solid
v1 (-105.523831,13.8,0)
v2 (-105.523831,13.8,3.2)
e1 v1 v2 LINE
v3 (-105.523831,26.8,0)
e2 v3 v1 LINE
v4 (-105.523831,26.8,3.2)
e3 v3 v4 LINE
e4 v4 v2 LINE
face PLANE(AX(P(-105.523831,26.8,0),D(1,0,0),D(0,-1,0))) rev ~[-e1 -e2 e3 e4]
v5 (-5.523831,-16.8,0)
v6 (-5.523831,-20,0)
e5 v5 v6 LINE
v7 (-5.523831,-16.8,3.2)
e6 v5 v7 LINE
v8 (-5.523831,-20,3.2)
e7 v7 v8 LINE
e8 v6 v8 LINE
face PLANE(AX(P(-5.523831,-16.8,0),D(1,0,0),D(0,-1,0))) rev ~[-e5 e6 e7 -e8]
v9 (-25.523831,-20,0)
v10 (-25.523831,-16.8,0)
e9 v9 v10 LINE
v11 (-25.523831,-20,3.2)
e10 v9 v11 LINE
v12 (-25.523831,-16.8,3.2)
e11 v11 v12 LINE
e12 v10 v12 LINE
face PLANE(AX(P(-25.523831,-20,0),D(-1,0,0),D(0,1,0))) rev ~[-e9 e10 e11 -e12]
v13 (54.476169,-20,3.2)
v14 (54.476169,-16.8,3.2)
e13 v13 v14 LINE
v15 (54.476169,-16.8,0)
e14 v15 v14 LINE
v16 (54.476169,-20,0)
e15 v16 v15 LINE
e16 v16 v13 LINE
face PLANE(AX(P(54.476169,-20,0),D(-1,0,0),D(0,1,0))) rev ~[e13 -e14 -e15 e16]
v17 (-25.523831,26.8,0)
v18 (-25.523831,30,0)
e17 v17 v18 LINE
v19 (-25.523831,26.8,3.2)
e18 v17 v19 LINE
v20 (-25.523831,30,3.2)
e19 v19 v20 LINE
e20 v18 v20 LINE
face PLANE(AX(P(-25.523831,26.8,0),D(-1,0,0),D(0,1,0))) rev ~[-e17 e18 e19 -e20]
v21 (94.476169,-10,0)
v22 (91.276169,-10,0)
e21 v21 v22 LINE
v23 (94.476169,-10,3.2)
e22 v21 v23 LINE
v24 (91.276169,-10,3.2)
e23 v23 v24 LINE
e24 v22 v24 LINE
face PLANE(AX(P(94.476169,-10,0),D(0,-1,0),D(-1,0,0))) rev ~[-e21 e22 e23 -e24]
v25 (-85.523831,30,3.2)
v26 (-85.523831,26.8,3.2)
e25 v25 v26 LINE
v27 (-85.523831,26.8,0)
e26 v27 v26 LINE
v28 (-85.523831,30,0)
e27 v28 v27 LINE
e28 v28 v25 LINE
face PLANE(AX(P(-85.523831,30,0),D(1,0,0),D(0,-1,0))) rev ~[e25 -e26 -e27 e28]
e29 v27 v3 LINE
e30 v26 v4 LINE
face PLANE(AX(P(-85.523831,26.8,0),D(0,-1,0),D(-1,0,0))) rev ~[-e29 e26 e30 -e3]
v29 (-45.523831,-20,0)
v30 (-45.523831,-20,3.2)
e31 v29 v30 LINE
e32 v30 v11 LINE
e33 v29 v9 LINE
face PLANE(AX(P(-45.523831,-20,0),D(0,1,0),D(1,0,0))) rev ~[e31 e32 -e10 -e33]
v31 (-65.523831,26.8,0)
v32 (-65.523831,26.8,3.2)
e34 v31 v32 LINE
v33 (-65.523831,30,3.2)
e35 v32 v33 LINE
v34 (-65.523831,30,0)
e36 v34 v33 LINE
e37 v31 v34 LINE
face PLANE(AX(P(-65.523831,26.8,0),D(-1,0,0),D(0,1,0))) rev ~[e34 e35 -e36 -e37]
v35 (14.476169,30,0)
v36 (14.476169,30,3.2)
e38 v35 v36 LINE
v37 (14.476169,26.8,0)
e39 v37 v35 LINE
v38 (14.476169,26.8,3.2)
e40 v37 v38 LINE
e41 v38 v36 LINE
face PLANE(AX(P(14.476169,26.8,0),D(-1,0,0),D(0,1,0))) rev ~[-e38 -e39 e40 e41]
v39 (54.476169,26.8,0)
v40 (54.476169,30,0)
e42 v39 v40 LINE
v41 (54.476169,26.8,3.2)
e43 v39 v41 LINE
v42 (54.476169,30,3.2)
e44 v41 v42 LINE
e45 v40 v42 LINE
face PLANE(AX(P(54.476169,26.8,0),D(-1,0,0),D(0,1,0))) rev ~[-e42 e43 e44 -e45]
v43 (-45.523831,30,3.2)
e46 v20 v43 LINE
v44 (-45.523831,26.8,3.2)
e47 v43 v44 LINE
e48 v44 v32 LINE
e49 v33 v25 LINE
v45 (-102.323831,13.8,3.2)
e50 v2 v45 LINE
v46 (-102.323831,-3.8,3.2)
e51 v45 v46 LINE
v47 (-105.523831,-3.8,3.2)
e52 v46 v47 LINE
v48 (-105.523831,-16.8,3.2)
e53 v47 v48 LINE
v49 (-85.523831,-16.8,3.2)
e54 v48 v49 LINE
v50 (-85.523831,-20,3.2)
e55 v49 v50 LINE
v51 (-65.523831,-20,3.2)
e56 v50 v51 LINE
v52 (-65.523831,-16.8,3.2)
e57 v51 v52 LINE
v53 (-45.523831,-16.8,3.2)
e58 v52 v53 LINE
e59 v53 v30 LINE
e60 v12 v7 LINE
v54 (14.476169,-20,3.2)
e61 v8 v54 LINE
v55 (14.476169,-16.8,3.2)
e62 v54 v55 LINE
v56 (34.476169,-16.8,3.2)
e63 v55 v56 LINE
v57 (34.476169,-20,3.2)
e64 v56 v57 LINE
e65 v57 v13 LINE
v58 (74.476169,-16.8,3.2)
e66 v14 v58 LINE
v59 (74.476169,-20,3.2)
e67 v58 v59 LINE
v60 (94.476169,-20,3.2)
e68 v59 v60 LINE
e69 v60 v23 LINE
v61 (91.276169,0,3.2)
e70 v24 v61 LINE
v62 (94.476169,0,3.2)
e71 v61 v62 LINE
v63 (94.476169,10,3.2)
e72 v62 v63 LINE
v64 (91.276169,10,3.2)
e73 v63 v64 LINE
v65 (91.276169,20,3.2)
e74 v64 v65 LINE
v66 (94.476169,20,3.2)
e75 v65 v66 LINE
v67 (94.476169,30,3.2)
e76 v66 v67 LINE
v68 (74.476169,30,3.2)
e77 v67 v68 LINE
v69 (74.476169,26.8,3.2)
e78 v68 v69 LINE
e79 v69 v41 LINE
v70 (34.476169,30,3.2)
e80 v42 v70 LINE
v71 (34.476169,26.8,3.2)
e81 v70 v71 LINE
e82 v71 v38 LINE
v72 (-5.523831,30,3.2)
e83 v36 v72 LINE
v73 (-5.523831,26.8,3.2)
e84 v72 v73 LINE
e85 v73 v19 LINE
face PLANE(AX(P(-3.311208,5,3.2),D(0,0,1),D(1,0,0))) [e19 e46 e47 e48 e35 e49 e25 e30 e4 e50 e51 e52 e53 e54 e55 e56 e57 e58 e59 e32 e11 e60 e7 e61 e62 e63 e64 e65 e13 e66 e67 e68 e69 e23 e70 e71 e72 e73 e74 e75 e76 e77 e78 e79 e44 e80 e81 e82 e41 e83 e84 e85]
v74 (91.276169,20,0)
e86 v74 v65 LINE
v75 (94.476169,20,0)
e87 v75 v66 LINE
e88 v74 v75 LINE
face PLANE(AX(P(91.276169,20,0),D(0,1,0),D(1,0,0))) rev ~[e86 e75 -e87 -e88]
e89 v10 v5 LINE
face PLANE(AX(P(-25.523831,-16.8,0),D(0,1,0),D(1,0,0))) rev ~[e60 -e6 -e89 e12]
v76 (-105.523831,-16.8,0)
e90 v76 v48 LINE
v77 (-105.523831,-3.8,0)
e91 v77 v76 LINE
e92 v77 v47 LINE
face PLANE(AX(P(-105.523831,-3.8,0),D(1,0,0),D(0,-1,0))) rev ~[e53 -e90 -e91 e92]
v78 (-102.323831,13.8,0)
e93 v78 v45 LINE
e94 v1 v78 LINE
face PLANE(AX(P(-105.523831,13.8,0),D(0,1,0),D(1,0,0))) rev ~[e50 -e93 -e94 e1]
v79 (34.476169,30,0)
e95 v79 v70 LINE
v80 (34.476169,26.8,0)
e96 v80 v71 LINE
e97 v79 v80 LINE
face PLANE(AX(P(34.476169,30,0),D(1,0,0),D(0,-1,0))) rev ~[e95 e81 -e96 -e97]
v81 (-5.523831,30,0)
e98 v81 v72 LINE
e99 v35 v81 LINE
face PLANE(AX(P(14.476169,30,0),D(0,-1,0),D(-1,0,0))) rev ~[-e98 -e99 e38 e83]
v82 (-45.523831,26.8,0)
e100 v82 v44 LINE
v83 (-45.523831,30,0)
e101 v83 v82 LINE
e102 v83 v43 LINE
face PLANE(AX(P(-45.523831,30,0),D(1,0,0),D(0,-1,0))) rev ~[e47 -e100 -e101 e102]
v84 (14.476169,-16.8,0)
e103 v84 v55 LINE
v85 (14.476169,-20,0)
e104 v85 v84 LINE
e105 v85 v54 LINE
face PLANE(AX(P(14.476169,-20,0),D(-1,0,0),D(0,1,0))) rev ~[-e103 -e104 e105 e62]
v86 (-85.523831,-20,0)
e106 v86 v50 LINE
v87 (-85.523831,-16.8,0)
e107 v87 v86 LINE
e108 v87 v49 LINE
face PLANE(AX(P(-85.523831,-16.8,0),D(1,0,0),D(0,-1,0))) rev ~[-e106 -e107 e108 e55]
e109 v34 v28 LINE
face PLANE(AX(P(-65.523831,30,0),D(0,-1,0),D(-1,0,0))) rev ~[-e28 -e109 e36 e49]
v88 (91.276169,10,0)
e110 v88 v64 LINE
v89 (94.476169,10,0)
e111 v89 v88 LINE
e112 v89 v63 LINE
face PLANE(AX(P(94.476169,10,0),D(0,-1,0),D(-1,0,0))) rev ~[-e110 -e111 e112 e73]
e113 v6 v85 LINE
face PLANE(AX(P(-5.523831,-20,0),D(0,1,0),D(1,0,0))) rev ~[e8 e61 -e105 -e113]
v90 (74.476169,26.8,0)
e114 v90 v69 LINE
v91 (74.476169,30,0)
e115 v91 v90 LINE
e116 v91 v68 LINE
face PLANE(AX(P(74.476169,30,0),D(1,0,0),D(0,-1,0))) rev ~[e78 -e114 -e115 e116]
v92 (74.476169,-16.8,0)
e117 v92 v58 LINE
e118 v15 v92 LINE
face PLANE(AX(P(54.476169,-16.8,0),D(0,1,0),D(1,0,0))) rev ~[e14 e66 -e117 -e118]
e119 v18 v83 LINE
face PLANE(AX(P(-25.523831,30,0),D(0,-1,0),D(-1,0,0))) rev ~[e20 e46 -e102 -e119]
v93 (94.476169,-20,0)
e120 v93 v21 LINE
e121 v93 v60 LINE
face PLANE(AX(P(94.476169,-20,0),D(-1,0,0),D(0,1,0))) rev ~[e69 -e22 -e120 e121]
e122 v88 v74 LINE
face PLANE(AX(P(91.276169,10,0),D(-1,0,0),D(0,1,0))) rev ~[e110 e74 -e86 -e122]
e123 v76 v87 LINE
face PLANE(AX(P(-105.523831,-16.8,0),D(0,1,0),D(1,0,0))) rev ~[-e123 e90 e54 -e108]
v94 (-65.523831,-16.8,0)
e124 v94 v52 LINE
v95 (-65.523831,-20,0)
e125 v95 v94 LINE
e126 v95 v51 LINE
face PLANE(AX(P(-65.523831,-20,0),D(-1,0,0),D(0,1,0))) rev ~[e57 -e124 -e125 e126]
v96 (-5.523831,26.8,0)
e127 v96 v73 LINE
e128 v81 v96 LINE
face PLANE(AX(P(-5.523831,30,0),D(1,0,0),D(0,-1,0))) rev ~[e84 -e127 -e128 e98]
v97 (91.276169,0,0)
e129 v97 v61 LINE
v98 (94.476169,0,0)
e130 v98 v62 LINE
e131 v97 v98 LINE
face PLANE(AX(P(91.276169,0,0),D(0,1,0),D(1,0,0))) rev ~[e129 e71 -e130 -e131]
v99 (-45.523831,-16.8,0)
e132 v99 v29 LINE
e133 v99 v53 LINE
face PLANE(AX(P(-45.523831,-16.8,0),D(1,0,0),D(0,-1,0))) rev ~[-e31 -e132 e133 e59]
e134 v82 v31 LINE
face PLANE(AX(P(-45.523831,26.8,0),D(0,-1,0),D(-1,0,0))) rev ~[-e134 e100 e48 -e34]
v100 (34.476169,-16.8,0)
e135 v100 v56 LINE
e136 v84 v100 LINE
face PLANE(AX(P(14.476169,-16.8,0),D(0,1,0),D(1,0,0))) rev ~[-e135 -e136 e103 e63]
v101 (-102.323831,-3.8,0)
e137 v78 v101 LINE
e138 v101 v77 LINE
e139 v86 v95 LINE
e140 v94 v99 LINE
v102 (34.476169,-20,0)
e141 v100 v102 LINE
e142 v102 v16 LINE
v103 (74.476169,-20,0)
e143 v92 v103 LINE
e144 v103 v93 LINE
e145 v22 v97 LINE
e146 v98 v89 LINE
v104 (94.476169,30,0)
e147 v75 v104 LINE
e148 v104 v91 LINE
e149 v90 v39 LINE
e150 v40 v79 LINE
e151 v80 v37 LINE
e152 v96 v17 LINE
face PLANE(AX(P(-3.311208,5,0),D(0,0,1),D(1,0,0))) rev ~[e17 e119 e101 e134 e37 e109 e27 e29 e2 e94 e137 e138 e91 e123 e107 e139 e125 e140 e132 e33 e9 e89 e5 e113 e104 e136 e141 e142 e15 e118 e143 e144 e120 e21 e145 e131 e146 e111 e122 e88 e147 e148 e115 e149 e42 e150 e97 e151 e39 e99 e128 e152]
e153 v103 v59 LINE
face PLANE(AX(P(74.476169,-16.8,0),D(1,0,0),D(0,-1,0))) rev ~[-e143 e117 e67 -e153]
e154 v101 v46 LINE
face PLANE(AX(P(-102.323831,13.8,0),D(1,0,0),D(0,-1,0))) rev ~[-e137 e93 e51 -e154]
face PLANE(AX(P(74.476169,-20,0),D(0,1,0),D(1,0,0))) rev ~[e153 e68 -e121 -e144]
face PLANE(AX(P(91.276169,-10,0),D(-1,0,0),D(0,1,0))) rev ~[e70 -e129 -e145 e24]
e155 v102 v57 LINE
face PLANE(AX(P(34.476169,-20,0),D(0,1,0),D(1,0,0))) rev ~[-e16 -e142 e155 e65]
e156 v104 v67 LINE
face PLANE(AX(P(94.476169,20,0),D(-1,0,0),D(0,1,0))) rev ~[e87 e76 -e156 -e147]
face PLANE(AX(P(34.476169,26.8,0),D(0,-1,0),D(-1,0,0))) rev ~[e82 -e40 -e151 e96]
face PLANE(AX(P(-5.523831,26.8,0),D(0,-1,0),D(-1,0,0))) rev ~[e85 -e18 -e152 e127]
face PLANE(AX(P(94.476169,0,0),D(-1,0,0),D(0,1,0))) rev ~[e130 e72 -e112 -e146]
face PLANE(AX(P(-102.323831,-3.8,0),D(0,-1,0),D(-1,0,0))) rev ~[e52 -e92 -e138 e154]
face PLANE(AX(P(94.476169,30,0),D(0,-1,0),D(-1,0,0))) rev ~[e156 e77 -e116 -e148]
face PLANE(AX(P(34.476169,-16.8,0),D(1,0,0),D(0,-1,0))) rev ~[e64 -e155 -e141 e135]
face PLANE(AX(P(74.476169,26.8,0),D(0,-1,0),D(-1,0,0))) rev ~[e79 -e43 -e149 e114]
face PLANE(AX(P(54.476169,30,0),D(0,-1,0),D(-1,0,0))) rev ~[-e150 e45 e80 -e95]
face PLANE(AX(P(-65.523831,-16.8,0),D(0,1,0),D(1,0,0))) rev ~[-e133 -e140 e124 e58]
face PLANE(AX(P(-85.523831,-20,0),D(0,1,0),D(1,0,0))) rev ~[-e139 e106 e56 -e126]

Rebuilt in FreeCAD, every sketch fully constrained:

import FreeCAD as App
import Part
import Sketcher

V = App.Vector
Q = App.Units.Quantity

doc = App.newDocument("Part")
body = doc.addObject("PartDesign::Body", "Body")

# Sketch on XY plane
sketch1 = body.newObject("Sketcher::SketchObject", "Sketch")
sketch1.AttachmentSupport = (doc.getObject("XY_Plane"), [""])
sketch1.MapMode = "FlatFace"
sketch1.addGeometry([
    Part.LineSegment(V(-65.523831, 30, 0), V(-85.523831, 30, 0)),  # 0
    Part.LineSegment(V(-85.523831, 30, 0), V(-85.523831, 26.8, 0)),  # 1
    Part.LineSegment(V(-85.523831, 26.8, 0), V(-105.523831, 26.8, 0)),  # 2
    Part.LineSegment(V(-105.523831, 26.8, 0), V(-105.523831, 13.8, 0)),  # 3
    Part.LineSegment(V(-105.523831, 13.8, 0), V(-102.323831, 13.8, 0)),  # 4
    Part.LineSegment(V(-102.323831, 13.8, 0), V(-102.323831, -3.8, 0)),  # 5
    Part.LineSegment(V(-102.323831, -3.8, 0), V(-105.523831, -3.8, 0)),  # 6
    Part.LineSegment(V(-105.523831, -3.8, 0), V(-105.523831, -16.8, 0)),  # 7
    Part.LineSegment(V(-105.523831, -16.8, 0), V(-85.523831, -16.8, 0)),  # 8
    Part.LineSegment(V(-85.523831, -16.8, 0), V(-85.523831, -20, 0)),  # 9
    Part.LineSegment(V(-85.523831, -20, 0), V(-65.523831, -20, 0)),  # 10
    Part.LineSegment(V(-65.523831, -20, 0), V(-65.523831, -16.8, 0)),  # 11
    Part.LineSegment(V(-65.523831, -16.8, 0), V(-45.523831, -16.8, 0)),  # 12
    Part.LineSegment(V(-45.523831, -16.8, 0), V(-45.523831, -20, 0)),  # 13
    Part.LineSegment(V(-45.523831, -20, 0), V(-25.523831, -20, 0)),  # 14
    Part.LineSegment(V(-25.523831, -20, 0), V(-25.523831, -16.8, 0)),  # 15
    Part.LineSegment(V(-25.523831, -16.8, 0), V(-5.523831, -16.8, 0)),  # 16
    Part.LineSegment(V(-5.523831, -16.8, 0), V(-5.523831, -20, 0)),  # 17
    Part.LineSegment(V(-5.523831, -20, 0), V(14.476169, -20, 0)),  # 18
    Part.LineSegment(V(14.476169, -20, 0), V(14.476169, -16.8, 0)),  # 19
    Part.LineSegment(V(14.476169, -16.8, 0), V(34.476169, -16.8, 0)),  # 20
    Part.LineSegment(V(34.476169, -16.8, 0), V(34.476169, -20, 0)),  # 21
    Part.LineSegment(V(34.476169, -20, 0), V(54.476169, -20, 0)),  # 22
    Part.LineSegment(V(54.476169, -20, 0), V(54.476169, -16.8, 0)),  # 23
    Part.LineSegment(V(54.476169, -16.8, 0), V(74.476169, -16.8, 0)),  # 24
    Part.LineSegment(V(74.476169, -16.8, 0), V(74.476169, -20, 0)),  # 25
    Part.LineSegment(V(74.476169, -20, 0), V(94.476169, -20, 0)),  # 26
    Part.LineSegment(V(94.476169, -20, 0), V(94.476169, -10, 0)),  # 27
    Part.LineSegment(V(94.476169, -10, 0), V(91.276169, -10, 0)),  # 28
    Part.LineSegment(V(91.276169, -10, 0), V(91.276169, 0, 0)),  # 29
    Part.LineSegment(V(91.276169, 0, 0), V(94.476169, 0, 0)),  # 30
    Part.LineSegment(V(94.476169, 0, 0), V(94.476169, 10, 0)),  # 31
    Part.LineSegment(V(94.476169, 10, 0), V(91.276169, 10, 0)),  # 32
    Part.LineSegment(V(91.276169, 10, 0), V(91.276169, 20, 0)),  # 33
    Part.LineSegment(V(91.276169, 20, 0), V(94.476169, 20, 0)),  # 34
    Part.LineSegment(V(94.476169, 20, 0), V(94.476169, 30, 0)),  # 35
    Part.LineSegment(V(94.476169, 30, 0), V(74.476169, 30, 0)),  # 36
    Part.LineSegment(V(74.476169, 30, 0), V(74.476169, 26.8, 0)),  # 37
    Part.LineSegment(V(74.476169, 26.8, 0), V(54.476169, 26.8, 0)),  # 38
    Part.LineSegment(V(54.476169, 26.8, 0), V(54.476169, 30, 0)),  # 39
    Part.LineSegment(V(54.476169, 30, 0), V(34.476169, 30, 0)),  # 40
    Part.LineSegment(V(34.476169, 30, 0), V(34.476169, 26.8, 0)),  # 41
    Part.LineSegment(V(34.476169, 26.8, 0), V(14.476169, 26.8, 0)),  # 42
    Part.LineSegment(V(14.476169, 26.8, 0), V(14.476169, 30, 0)),  # 43
    Part.LineSegment(V(14.476169, 30, 0), V(-5.523831, 30, 0)),  # 44
    Part.LineSegment(V(-5.523831, 30, 0), V(-5.523831, 26.8, 0)),  # 45
    Part.LineSegment(V(-5.523831, 26.8, 0), V(-25.523831, 26.8, 0)),  # 46
    Part.LineSegment(V(-25.523831, 26.8, 0), V(-25.523831, 30, 0)),  # 47
    Part.LineSegment(V(-25.523831, 30, 0), V(-45.523831, 30, 0)),  # 48
    Part.LineSegment(V(-45.523831, 30, 0), V(-45.523831, 26.8, 0)),  # 49
    Part.LineSegment(V(-45.523831, 26.8, 0), V(-65.523831, 26.8, 0)),  # 50
    Part.LineSegment(V(-65.523831, 26.8, 0), V(-65.523831, 30, 0)),  # 51
], False)
sketch1.addConstraint([
    Sketcher.Constraint("Coincident", 0, 2, 1, 1),
    Sketcher.Constraint("Coincident", 1, 2, 2, 1),
    Sketcher.Constraint("Coincident", 2, 2, 3, 1),
    Sketcher.Constraint("Coincident", 3, 2, 4, 1),
    Sketcher.Constraint("Coincident", 4, 2, 5, 1),
    Sketcher.Constraint("Coincident", 5, 2, 6, 1),
    Sketcher.Constraint("Coincident", 6, 2, 7, 1),
    Sketcher.Constraint("Coincident", 7, 2, 8, 1),
    Sketcher.Constraint("Coincident", 8, 2, 9, 1),
    Sketcher.Constraint("Coincident", 9, 2, 10, 1),
    Sketcher.Constraint("Coincident", 10, 2, 11, 1),
    Sketcher.Constraint("Coincident", 11, 2, 12, 1),
    Sketcher.Constraint("Coincident", 12, 2, 13, 1),
    Sketcher.Constraint("Coincident", 13, 2, 14, 1),
    Sketcher.Constraint("Coincident", 14, 2, 15, 1),
    Sketcher.Constraint("Coincident", 15, 2, 16, 1),
    Sketcher.Constraint("Coincident", 16, 2, 17, 1),
    Sketcher.Constraint("Coincident", 17, 2, 18, 1),
    Sketcher.Constraint("Coincident", 18, 2, 19, 1),
    Sketcher.Constraint("Coincident", 19, 2, 20, 1),
    Sketcher.Constraint("Coincident", 20, 2, 21, 1),
    Sketcher.Constraint("Coincident", 21, 2, 22, 1),
    Sketcher.Constraint("Coincident", 22, 2, 23, 1),
    Sketcher.Constraint("Coincident", 23, 2, 24, 1),
    Sketcher.Constraint("Coincident", 24, 2, 25, 1),
    Sketcher.Constraint("Coincident", 25, 2, 26, 1),
    Sketcher.Constraint("Coincident", 26, 2, 27, 1),
    Sketcher.Constraint("Coincident", 27, 2, 28, 1),
    Sketcher.Constraint("Coincident", 28, 2, 29, 1),
    Sketcher.Constraint("Coincident", 29, 2, 30, 1),
    Sketcher.Constraint("Coincident", 30, 2, 31, 1),
    Sketcher.Constraint("Coincident", 31, 2, 32, 1),
    Sketcher.Constraint("Coincident", 32, 2, 33, 1),
    Sketcher.Constraint("Coincident", 33, 2, 34, 1),
    Sketcher.Constraint("Coincident", 34, 2, 35, 1),
    Sketcher.Constraint("Coincident", 35, 2, 36, 1),
    Sketcher.Constraint("Coincident", 36, 2, 37, 1),
    Sketcher.Constraint("Coincident", 37, 2, 38, 1),
    Sketcher.Constraint("Coincident", 38, 2, 39, 1),
    Sketcher.Constraint("Coincident", 39, 2, 40, 1),
    Sketcher.Constraint("Coincident", 40, 2, 41, 1),
    Sketcher.Constraint("Coincident", 41, 2, 42, 1),
    Sketcher.Constraint("Coincident", 42, 2, 43, 1),
    Sketcher.Constraint("Coincident", 43, 2, 44, 1),
    Sketcher.Constraint("Coincident", 44, 2, 45, 1),
    Sketcher.Constraint("Coincident", 45, 2, 46, 1),
    Sketcher.Constraint("Coincident", 46, 2, 47, 1),
    Sketcher.Constraint("Coincident", 47, 2, 48, 1),
    Sketcher.Constraint("Coincident", 48, 2, 49, 1),
    Sketcher.Constraint("Coincident", 49, 2, 50, 1),
    Sketcher.Constraint("Coincident", 50, 2, 51, 1),
    Sketcher.Constraint("Coincident", 51, 2, 0, 1),
    Sketcher.Constraint("Horizontal", 0),
    Sketcher.Constraint("Vertical", 1),
    Sketcher.Constraint("Horizontal", 2),
    Sketcher.Constraint("Vertical", 3),
    Sketcher.Constraint("Horizontal", 4),
    Sketcher.Constraint("Vertical", 5),
    Sketcher.Constraint("Horizontal", 6),
    Sketcher.Constraint("Vertical", 7),
    Sketcher.Constraint("Horizontal", 8),
    Sketcher.Constraint("Vertical", 9),
    Sketcher.Constraint("Horizontal", 10),
    Sketcher.Constraint("Vertical", 11),
    Sketcher.Constraint("Horizontal", 12),
    Sketcher.Constraint("Vertical", 13),
    Sketcher.Constraint("Horizontal", 14),
    Sketcher.Constraint("Vertical", 15),
    Sketcher.Constraint("Horizontal", 16),
    Sketcher.Constraint("Vertical", 17),
    Sketcher.Constraint("Horizontal", 18),
    Sketcher.Constraint("Vertical", 19),
    Sketcher.Constraint("Horizontal", 20),
    Sketcher.Constraint("Vertical", 21),
    Sketcher.Constraint("Horizontal", 22),
    Sketcher.Constraint("Vertical", 23),
    Sketcher.Constraint("Horizontal", 24),
    Sketcher.Constraint("Vertical", 25),
    Sketcher.Constraint("Horizontal", 26),
    Sketcher.Constraint("Vertical", 27),
    Sketcher.Constraint("Horizontal", 28),
    Sketcher.Constraint("Vertical", 29),
    Sketcher.Constraint("Horizontal", 30),
    Sketcher.Constraint("Vertical", 31),
    Sketcher.Constraint("Horizontal", 32),
    Sketcher.Constraint("Vertical", 33),
    Sketcher.Constraint("Horizontal", 34),
    Sketcher.Constraint("Vertical", 35),
    Sketcher.Constraint("Horizontal", 36),
    Sketcher.Constraint("Vertical", 37),
    Sketcher.Constraint("Horizontal", 38),
    Sketcher.Constraint("Vertical", 39),
    Sketcher.Constraint("Horizontal", 40),
    Sketcher.Constraint("Vertical", 41),
    Sketcher.Constraint("Horizontal", 42),
    Sketcher.Constraint("Vertical", 43),
    Sketcher.Constraint("Horizontal", 44),
    Sketcher.Constraint("Vertical", 45),
    Sketcher.Constraint("Horizontal", 46),
    Sketcher.Constraint("Vertical", 47),
    Sketcher.Constraint("Horizontal", 48),
    Sketcher.Constraint("Vertical", 49),
    Sketcher.Constraint("Horizontal", 50),
    Sketcher.Constraint("Vertical", 51),
    Sketcher.Constraint("Symmetric", 27, 2, 31, 2, -1),
    Sketcher.Constraint("Symmetric", 26, 2, 34, 2, -1),
    Sketcher.Constraint("PointOnObject", 29, 2, -1),
    Sketcher.Constraint("Horizontal", 8, 2, 11, 2),
    Sketcher.Constraint("Horizontal", 10, 2, 13, 2),
    Sketcher.Constraint("Horizontal", 12, 2, 15, 2),
    Sketcher.Constraint("Horizontal", 14, 2, 17, 2),
    Sketcher.Constraint("Horizontal", 16, 2, 19, 2),
    Sketcher.Constraint("Horizontal", 18, 2, 21, 2),
    Sketcher.Constraint("Horizontal", 20, 2, 23, 2),
    Sketcher.Constraint("Horizontal", 22, 2, 25, 2),
    Sketcher.Constraint("Horizontal", 0, 2, 35, 2),
    Sketcher.Constraint("Horizontal", 2, 2, 37, 2),
    Sketcher.Constraint("Horizontal", 36, 2, 39, 2),
    Sketcher.Constraint("Horizontal", 38, 2, 41, 2),
    Sketcher.Constraint("Horizontal", 40, 2, 43, 2),
    Sketcher.Constraint("Horizontal", 42, 2, 45, 2),
    Sketcher.Constraint("Horizontal", 44, 2, 47, 2),
    Sketcher.Constraint("Horizontal", 46, 2, 49, 2),
    Sketcher.Constraint("Vertical", 3, 2, 6, 2),
    Sketcher.Constraint("Vertical", 1, 2, 8, 2),
    Sketcher.Constraint("Vertical", 29, 2, 32, 2),
    Sketcher.Constraint("Vertical", 25, 2, 36, 2),
    Sketcher.Constraint("Vertical", 23, 2, 38, 2),
    Sketcher.Constraint("Vertical", 21, 2, 40, 2),
    Sketcher.Constraint("Vertical", 19, 2, 42, 2),
    Sketcher.Constraint("Vertical", 17, 2, 44, 2),
    Sketcher.Constraint("Vertical", 15, 2, 46, 2),
    Sketcher.Constraint("Vertical", 13, 2, 48, 2),
    Sketcher.Constraint("Vertical", 11, 2, 50, 2),
    Sketcher.Constraint("Equal", 0, 2),
    Sketcher.Constraint("Equal", 10, 12),
    Sketcher.Constraint("Equal", 12, 14),
    Sketcher.Constraint("Equal", 14, 16),
    Sketcher.Constraint("Equal", 16, 18),
    Sketcher.Constraint("Equal", 18, 20),
    Sketcher.Constraint("Equal", 20, 22),
    Sketcher.Constraint("Equal", 22, 24),
    Sketcher.Constraint("Equal", 24, 26),
    Sketcher.Constraint("Equal", 6, 28),
    Sketcher.Constraint("Equal", 34, 1),
    Sketcher.Constraint("Equal", 3, 7),
    Sketcher.Constraint("Equal", 1, 9),
    Sketcher.Constraint("Equal", 27, 29),
    Sketcher.Constraint("Equal", 33, 35),
    Sketcher.Constraint("DistanceX", 0, 2, 0, 1, Q("20 mm")),
    Sketcher.Constraint("DistanceY", 3, 2, 3, 1, Q("13 mm")),
    Sketcher.Constraint("DistanceY", 27, 1, 27, 2, Q("10 mm")),
    Sketcher.Constraint("DistanceX", 4, 1, 4, 2, Q("3.2 mm")),
    Sketcher.Constraint("DistanceX", 0, 2, -1, 1, Q("85.523831 mm")),
])
pad1 = body.newObject("PartDesign::Pad", "Pad")
pad1.Profile = sketch1
pad1.Length = 3.2

doc.recompute()
